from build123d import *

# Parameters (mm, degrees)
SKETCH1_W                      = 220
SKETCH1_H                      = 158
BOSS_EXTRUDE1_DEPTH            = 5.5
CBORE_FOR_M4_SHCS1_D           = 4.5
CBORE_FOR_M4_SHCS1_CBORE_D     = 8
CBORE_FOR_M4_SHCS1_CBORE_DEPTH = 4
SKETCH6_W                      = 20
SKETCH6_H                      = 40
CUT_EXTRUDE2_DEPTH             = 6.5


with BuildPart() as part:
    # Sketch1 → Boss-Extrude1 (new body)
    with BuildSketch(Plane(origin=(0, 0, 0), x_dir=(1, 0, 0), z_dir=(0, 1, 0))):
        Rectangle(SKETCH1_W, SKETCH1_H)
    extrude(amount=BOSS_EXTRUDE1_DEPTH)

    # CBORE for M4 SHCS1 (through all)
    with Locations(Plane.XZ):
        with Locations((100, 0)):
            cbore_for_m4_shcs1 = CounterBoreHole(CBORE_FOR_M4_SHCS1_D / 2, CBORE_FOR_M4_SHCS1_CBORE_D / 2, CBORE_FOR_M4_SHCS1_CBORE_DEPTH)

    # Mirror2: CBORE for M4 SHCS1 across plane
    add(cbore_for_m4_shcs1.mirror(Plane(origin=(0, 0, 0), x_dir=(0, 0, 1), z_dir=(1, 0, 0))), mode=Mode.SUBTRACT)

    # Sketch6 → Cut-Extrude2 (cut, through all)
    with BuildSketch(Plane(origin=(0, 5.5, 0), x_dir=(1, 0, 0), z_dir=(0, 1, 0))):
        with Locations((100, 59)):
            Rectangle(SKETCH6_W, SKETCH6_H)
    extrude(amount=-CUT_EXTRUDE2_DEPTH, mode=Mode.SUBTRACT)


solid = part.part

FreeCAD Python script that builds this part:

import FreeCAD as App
import Part
import Sketcher
Q = App.Units.Quantity


def add_polygon(sketch, points):
    """Adds a closed chain of lines whose ends are joined by coincident constraints."""
    first, n = sketch.GeometryCount, len(points)
    for a, b in zip(points, points[1:] + points[:1]):
        sketch.addGeometry(Part.LineSegment(App.Vector(*a, 0), App.Vector(*b, 0)), False)
    for i in range(n):
        sketch.addConstraint(Sketcher.Constraint("Coincident", first + i, 2, first + (i + 1) % n, 1))

doc = App.newDocument("Part")
body = doc.addObject("PartDesign::Body", "Body")

# Sketch on XZ plane
sketch1 = body.newObject("Sketcher::SketchObject", "Sketch")
sketch1.AttachmentSupport = (doc.getObject("XZ_Plane"), [""])
sketch1.MapMode = "FlatFace"
add_polygon(sketch1, [(-110, -79), (-110, 79), (110, 79), (110, -79)])  # lines 0-3
sketch1.addConstraint(Sketcher.Constraint("Vertical", 0))
sketch1.addConstraint(Sketcher.Constraint("Horizontal", 1))
sketch1.addConstraint(Sketcher.Constraint("Vertical", 2))
sketch1.addConstraint(Sketcher.Constraint("Horizontal", 3))
sketch1.addConstraint(Sketcher.Constraint("Symmetric", 0, 2, 2, 2, -1, 1))
sketch1.addConstraint(Sketcher.Constraint("DistanceX", 1, 1, 1, 2, Q("220 mm")))
sketch1.addConstraint(Sketcher.Constraint("DistanceY", 0, 1, 0, 2, Q("158 mm")))
pad1 = body.newObject("PartDesign::Pad", "Pad")
pad1.Profile = sketch1
pad1.Length = 5.5
pad1.Reversed = True

# Sketch on XZ plane
sketch2 = body.newObject("Sketcher::SketchObject", "Sketch001")
sketch2.AttachmentSupport = (doc.getObject("XZ_Plane"), [""])
sketch2.MapMode = "FlatFace"
sketch2.addGeometry(Part.Circle(App.Vector(100, 0, 0), App.Vector(0, 0, 1), 2.2), False)
sketch2.addConstraint(Sketcher.Constraint("PointOnObject", 0, 3, -1))
sketch2.addConstraint(Sketcher.Constraint("Diameter", 0, Q("4.5 mm")))
sketch2.addConstraint(Sketcher.Constraint("DistanceX", -1, 1, 0, 3, Q("100 mm")))
doc.recompute()
hole = body.newObject("PartDesign::Hole", "Hole")
hole.Profile = sketch2
hole.ThreadType = "None"
hole.Diameter = 4.5
hole.DepthType = "ThroughAll"
hole.HoleCutType = "Counterbore"
hole.HoleCutDiameter = 8
hole.HoleCutDepth = 4
doc.recompute()

mirrored = body.newObject("PartDesign::Mirrored", "Mirrored")
mirrored.Originals = [hole]
mirrored.MirrorPlane = (doc.getObject("YZ_Plane"), [""])
body.Tip = mirrored

# Sketch on XZ plane
sketch3 = body.newObject("Sketcher::SketchObject", "Sketch002")
sketch3.AttachmentSupport = (doc.getObject("XZ_Plane"), [""])
sketch3.MapMode = "FlatFace"
sketch3.AttachmentOffset = App.Placement(App.Vector(0, 0, -5.5), App.Rotation())
add_polygon(sketch3, [(90, -79), (90, -39), (110, -39), (110, -79)])  # lines 0-3
sketch3.addConstraint(Sketcher.Constraint("Vertical", 0))
sketch3.addConstraint(Sketcher.Constraint("Horizontal", 1))
sketch3.addConstraint(Sketcher.Constraint("Vertical", 2))
sketch3.addConstraint(Sketcher.Constraint("Horizontal", 3))
sketch3.addConstraint(Sketcher.Constraint("DistanceX", 1, 1, 1, 2, Q("20 mm")))
sketch3.addConstraint(Sketcher.Constraint("DistanceY", 0, 1, 0, 2, Q("40 mm")))
sketch3.addConstraint(Sketcher.Constraint("DistanceX", -1, 1, 0, 2, Q("90 mm")))
sketch3.addConstraint(Sketcher.Constraint("DistanceY", 0, 2, -1, 1, Q("39 mm")))
pocket1 = body.newObject("PartDesign::Pocket", "Pocket")
pocket1.Profile = sketch3
pocket1.Type = "ThroughAll"
pocket1.Reversed = True

doc.recompute()
